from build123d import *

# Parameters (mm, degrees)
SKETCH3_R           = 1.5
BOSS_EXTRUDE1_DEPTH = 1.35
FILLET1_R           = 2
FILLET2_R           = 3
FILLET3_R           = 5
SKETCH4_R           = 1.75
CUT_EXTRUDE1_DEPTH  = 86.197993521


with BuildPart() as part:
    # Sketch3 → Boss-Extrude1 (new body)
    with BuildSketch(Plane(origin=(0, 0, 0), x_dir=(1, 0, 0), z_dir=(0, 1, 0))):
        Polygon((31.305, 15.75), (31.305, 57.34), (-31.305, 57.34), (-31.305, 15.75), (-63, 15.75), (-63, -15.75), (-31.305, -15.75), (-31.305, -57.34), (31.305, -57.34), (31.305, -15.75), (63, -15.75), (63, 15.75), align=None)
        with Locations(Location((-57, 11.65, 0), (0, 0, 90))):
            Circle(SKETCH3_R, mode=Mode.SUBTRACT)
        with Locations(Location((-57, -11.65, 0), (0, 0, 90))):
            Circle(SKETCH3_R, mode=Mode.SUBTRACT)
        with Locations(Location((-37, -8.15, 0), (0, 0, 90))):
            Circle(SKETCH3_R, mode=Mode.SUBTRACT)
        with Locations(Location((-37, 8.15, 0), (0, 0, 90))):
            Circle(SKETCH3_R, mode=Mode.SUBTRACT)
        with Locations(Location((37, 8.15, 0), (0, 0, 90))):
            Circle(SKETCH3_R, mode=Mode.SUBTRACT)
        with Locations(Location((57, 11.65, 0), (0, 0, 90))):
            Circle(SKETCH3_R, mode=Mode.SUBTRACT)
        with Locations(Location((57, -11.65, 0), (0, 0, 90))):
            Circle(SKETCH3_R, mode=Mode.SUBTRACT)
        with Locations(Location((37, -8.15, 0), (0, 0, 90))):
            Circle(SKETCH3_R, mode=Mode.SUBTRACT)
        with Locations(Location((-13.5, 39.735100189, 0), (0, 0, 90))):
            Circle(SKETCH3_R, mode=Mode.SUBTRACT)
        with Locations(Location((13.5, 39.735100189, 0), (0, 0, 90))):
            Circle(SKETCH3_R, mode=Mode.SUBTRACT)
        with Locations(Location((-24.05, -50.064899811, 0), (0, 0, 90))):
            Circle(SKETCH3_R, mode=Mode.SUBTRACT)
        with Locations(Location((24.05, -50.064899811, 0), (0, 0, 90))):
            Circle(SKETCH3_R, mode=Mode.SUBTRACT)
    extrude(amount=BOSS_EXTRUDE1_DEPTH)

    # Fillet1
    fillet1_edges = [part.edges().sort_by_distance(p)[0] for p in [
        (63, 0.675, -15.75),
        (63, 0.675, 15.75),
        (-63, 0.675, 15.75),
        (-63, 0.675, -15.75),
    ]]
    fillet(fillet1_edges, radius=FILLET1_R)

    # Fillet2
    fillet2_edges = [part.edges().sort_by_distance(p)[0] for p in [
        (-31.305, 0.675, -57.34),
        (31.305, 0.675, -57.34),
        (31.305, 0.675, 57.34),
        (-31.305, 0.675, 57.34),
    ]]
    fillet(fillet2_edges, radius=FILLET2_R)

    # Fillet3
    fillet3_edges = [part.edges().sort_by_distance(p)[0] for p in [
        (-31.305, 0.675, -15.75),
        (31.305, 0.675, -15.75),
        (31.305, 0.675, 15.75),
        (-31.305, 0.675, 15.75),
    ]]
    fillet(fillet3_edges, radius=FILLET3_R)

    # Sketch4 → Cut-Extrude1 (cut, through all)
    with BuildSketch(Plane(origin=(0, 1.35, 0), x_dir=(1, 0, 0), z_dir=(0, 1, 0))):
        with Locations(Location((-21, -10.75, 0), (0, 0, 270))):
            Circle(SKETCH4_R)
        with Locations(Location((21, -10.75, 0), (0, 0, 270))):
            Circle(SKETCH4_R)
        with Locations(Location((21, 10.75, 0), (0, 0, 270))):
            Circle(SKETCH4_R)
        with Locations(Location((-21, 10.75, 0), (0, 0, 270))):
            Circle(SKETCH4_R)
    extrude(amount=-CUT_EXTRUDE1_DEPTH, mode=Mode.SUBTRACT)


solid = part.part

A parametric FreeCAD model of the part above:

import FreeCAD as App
import Part
import Sketcher
from FreeCAD import Vector
Q = App.Units.Quantity


def edges_at(feature, points):
    """Names of the edges that pass closest to the given points."""
    edges = feature.Shape.Edges
    near = lambda p: min(range(len(edges)), key=lambda i: edges[i].distToShape(Part.Vertex(*p))[0])
    return sorted({f"Edge{near(p) + 1}" for p in points})

doc = App.newDocument("Part")
body = doc.addObject("PartDesign::Body", "Body")

# Sketch on XZ plane
sketch1 = doc.addObject("Sketcher::SketchObject", "Sketch")
body.addObject(sketch1)
sketch1.AttachmentSupport = (doc.XZ_Plane, [""])
sketch1.MapMode = "FlatFace"
sketch1.addGeometry(Part.LineSegment(Vector(31.3, -15.8, 0), Vector(31.3, -57.3, 0)), False)
sketch1.addGeometry(Part.LineSegment(Vector(31.3, -57.3, 0), Vector(-31.3, -57.3, 0)), False)
sketch1.addGeometry(Part.LineSegment(Vector(-31.3, -57.3, 0), Vector(-31.3, -15.8, 0)), False)
sketch1.addGeometry(Part.LineSegment(Vector(-31.3, -15.8, 0), Vector(-63, -15.8, 0)), False)
sketch1.addGeometry(Part.LineSegment(Vector(-63, -15.8, 0), Vector(-63, 15.8, 0)), False)
sketch1.addGeometry(Part.LineSegment(Vector(-63, 15.8, 0), Vector(-31.3, 15.8, 0)), False)
sketch1.addGeometry(Part.LineSegment(Vector(-31.3, 15.8, 0), Vector(-31.3, 57.3, 0)), False)
sketch1.addGeometry(Part.LineSegment(Vector(-31.3, 57.3, 0), Vector(31.3, 57.3, 0)), False)
sketch1.addGeometry(Part.LineSegment(Vector(31.3, 57.3, 0), Vector(31.3, 15.8, 0)), False)
sketch1.addGeometry(Part.LineSegment(Vector(31.3, 15.8, 0), Vector(63, 15.8, 0)), False)
sketch1.addGeometry(Part.LineSegment(Vector(63, 15.8, 0), Vector(63, -15.8, 0)), False)
sketch1.addGeometry(Part.LineSegment(Vector(63, -15.8, 0), Vector(31.3, -15.8, 0)), False)
sketch1.addGeometry(Part.Circle(Vector(-24.1, 50.1, 0), Vector(0, 0, 1), 1.5), False)
sketch1.addGeometry(Part.Circle(Vector(-57, 11.7, 0), Vector(0, 0, 1), 1.5), False)
sketch1.addGeometry(Part.Circle(Vector(-37, 8.2, 0), Vector(0, 0, 1), 1.5), False)
sketch1.addGeometry(Part.Circle(Vector(24.1, 50.1, 0), Vector(0, 0, 1), 1.5), False)
sketch1.addGeometry(Part.Circle(Vector(37, 8.2, 0), Vector(0, 0, 1), 1.5), False)
sketch1.addGeometry(Part.Circle(Vector(57, 11.7, 0), Vector(0, 0, 1), 1.5), False)
sketch1.addGeometry(Part.Circle(Vector(-57, -11.7, 0), Vector(0, 0, 1), 1.5), False)
sketch1.addGeometry(Part.Circle(Vector(-37, -8.2, 0), Vector(0, 0, 1), 1.5), False)
sketch1.addGeometry(Part.Circle(Vector(-13.5, -39.7, 0), Vector(0, 0, 1), 1.5), False)
sketch1.addGeometry(Part.Circle(Vector(37, -8.2, 0), Vector(0, 0, 1), 1.5), False)
sketch1.addGeometry(Part.Circle(Vector(57, -11.7, 0), Vector(0, 0, 1), 1.5), False)
sketch1.addGeometry(Part.Circle(Vector(13.5, -39.7, 0), Vector(0, 0, 1), 1.5), False)
sketch1.addConstraint(Sketcher.Constraint("Coincident", 0, 2, 1, 1))
sketch1.addConstraint(Sketcher.Constraint("Coincident", 1, 2, 2, 1))
sketch1.addConstraint(Sketcher.Constraint("Coincident", 2, 2, 3, 1))
sketch1.addConstraint(Sketcher.Constraint("Coincident", 3, 2, 4, 1))
sketch1.addConstraint(Sketcher.Constraint("Coincident", 4, 2, 5, 1))
sketch1.addConstraint(Sketcher.Constraint("Coincident", 5, 2, 6, 1))
sketch1.addConstraint(Sketcher.Constraint("Coincident", 6, 2, 7, 1))
sketch1.addConstraint(Sketcher.Constraint("Coincident", 7, 2, 8, 1))
sketch1.addConstraint(Sketcher.Constraint("Coincident", 8, 2, 9, 1))
sketch1.addConstraint(Sketcher.Constraint("Coincident", 9, 2, 10, 1))
sketch1.addConstraint(Sketcher.Constraint("Coincident", 10, 2, 11, 1))
sketch1.addConstraint(Sketcher.Constraint("Coincident", 11, 2, 0, 1))
sketch1.addConstraint(Sketcher.Constraint("Vertical", 0))
sketch1.addConstraint(Sketcher.Constraint("Horizontal", 1))
sketch1.addConstraint(Sketcher.Constraint("Vertical", 2))
sketch1.addConstraint(Sketcher.Constraint("Horizontal", 3))
sketch1.addConstraint(Sketcher.Constraint("Vertical", 4))
sketch1.addConstraint(Sketcher.Constraint("Horizontal", 5))
sketch1.addConstraint(Sketcher.Constraint("Vertical", 6))
sketch1.addConstraint(Sketcher.Constraint("Horizontal", 7))
sketch1.addConstraint(Sketcher.Constraint("Vertical", 8))
sketch1.addConstraint(Sketcher.Constraint("Horizontal", 9))
sketch1.addConstraint(Sketcher.Constraint("Vertical", 10))
sketch1.addConstraint(Sketcher.Constraint("Horizontal", 11))
sketch1.addConstraint(Sketcher.Constraint("Equal", 12, 13))
sketch1.addConstraint(Sketcher.Constraint("Equal", 13, 14))
sketch1.addConstraint(Sketcher.Constraint("Equal", 14, 15))
sketch1.addConstraint(Sketcher.Constraint("Equal", 15, 16))
sketch1.addConstraint(Sketcher.Constraint("Equal", 16, 17))
sketch1.addConstraint(Sketcher.Constraint("Equal", 17, 18))
sketch1.addConstraint(Sketcher.Constraint("Equal", 18, 19))
sketch1.addConstraint(Sketcher.Constraint("Equal", 19, 20))
sketch1.addConstraint(Sketcher.Constraint("Equal", 20, 21))
sketch1.addConstraint(Sketcher.Constraint("Equal", 21, 22))
sketch1.addConstraint(Sketcher.Constraint("Equal", 22, 23))
sketch1.addConstraint(Sketcher.Constraint("Symmetric", 17, 3, 18, 3, -1, 1))
sketch1.addConstraint(Sketcher.Constraint("Symmetric", 16, 3, 19, 3, -1, 1))
sketch1.addConstraint(Sketcher.Constraint("Symmetric", 14, 3, 21, 3, -1, 1))
sketch1.addConstraint(Sketcher.Constraint("Symmetric", 13, 3, 22, 3, -1, 1))
sketch1.addConstraint(Sketcher.Constraint("Symmetric", 0, 2, 6, 2, -1, 1))
sketch1.addConstraint(Sketcher.Constraint("Symmetric", 2, 2, 8, 2, -1, 1))
sketch1.addConstraint(Sketcher.Constraint("Symmetric", 4, 2, 10, 2, -1, 1))
sketch1.addConstraint(Sketcher.Constraint("Symmetric", 12, 3, 15, 3, -2))
sketch1.addConstraint(Sketcher.Constraint("Symmetric", 14, 3, 16, 3, -2))
sketch1.addConstraint(Sketcher.Constraint("Symmetric", 13, 3, 17, 3, -2))
sketch1.addConstraint(Sketcher.Constraint("Symmetric", 20, 3, 23, 3, -2))
sketch1.addConstraint(Sketcher.Constraint("Symmetric", 5, 2, 8, 2, -2))
sketch1.addConstraint(Sketcher.Constraint("Diameter", 12, Q("3 mm")))
sketch1.addConstraint(Sketcher.Constraint("DistanceY", 4, 1, 4, 2, Q("31.5 mm")))
sketch1.addConstraint(Sketcher.Constraint("DistanceX", 13, 3, -1, 1, Q("57 mm")))
sketch1.addConstraint(Sketcher.Constraint("DistanceX", 14, 3, -1, 1, Q("37 mm")))
sketch1.addConstraint(Sketcher.Constraint("DistanceX", 3, 2, -1, 1, Q("63 mm")))
sketch1.addConstraint(Sketcher.Constraint("DistanceX", 20, 3, 23, 3, Q("27 mm")))
sketch1.addConstraint(Sketcher.Constraint("DistanceX", 1, 2, 1, 1, Q("62.61 mm")))
sketch1.addConstraint(Sketcher.Constraint("DistanceY", 0, 2, 0, 1, Q("41.59 mm")))
sketch1.addConstraint(Sketcher.Constraint("DistanceY", 14, 3, 13, 3, Q("3.5 mm")))
sketch1.addConstraint(Sketcher.Constraint("DistanceX", 12, 3, 15, 3, Q("48.1 mm")))
sketch1.addConstraint(Sketcher.Constraint("DistanceY", 18, 3, 13, 3, Q("23.3 mm")))
sketch1.addConstraint(Sketcher.Constraint("DistanceY", -1, 1, 12, 3, Q("50.0649 mm")))
sketch1.addConstraint(Sketcher.Constraint("DistanceY", 20, 3, -1, 1, Q("39.7351 mm")))
pad1 = doc.addObject("PartDesign::Pad", "Pad")
body.addObject(pad1)
pad1.Profile = sketch1
pad1.Length = 1.35
pad1.Reversed = True
doc.recompute()

fillet = doc.addObject("PartDesign::Fillet", "Fillet")
body.addObject(fillet)
fillet.Base = (pad1, edges_at(pad1, [
    (63, 0.675, -15.75),
    (63, 0.675, 15.75),
    (-63, 0.675, 15.75),
    (-63, 0.675, -15.75),
]))
fillet.Radius = 2
doc.recompute()

fillet2 = doc.addObject("PartDesign::Fillet", "Fillet001")
body.addObject(fillet2)
fillet2.Base = (fillet, edges_at(fillet, [
    (-31.305, 0.675, -57.34),
    (31.305, 0.675, -57.34),
    (31.305, 0.675, 57.34),
    (-31.305, 0.675, 57.34),
]))
fillet2.Radius = 3
doc.recompute()

fillet3 = doc.addObject("PartDesign::Fillet", "Fillet002")
body.addObject(fillet3)
fillet3.Base = (fillet2, edges_at(fillet2, [
    (-31.305, 0.675, -15.75),
    (31.305, 0.675, -15.75),
    (31.305, 0.675, 15.75),
    (-31.305, 0.675, 15.75),
]))
fillet3.Radius = 5

# Sketch on XZ plane
sketch2 = doc.addObject("Sketcher::SketchObject", "Sketch001")
body.addObject(sketch2)
sketch2.AttachmentSupport = (doc.XZ_Plane, [""])
sketch2.MapMode = "FlatFace"
sketch2.AttachmentOffset = App.Placement(Vector(0, 0, -1.35), App.Rotation())
sketch2.addGeometry(Part.Circle(Vector(-21, 10.8, 0), Vector(0, 0, 1), 1.8), False)
sketch2.addGeometry(Part.Circle(Vector(21, 10.8, 0), Vector(0, 0, 1), 1.8), False)
sketch2.addGeometry(Part.Circle(Vector(21, -10.8, 0), Vector(0, 0, 1), 1.8), False)
sketch2.addGeometry(Part.Circle(Vector(-21, -10.8, 0), Vector(0, 0, 1), 1.8), False)
sketch2.addConstraint(Sketcher.Constraint("Equal", 0, 1))
sketch2.addConstraint(Sketcher.Constraint("Equal", 1, 2))
sketch2.addConstraint(Sketcher.Constraint("Equal", 2, 3))
sketch2.addConstraint(Sketcher.Constraint("Symmetric", 0, 3, 2, 3, -1, 1))
sketch2.addConstraint(Sketcher.Constraint("Symmetric", 1, 3, 3, 3, -1, 1))
sketch2.addConstraint(Sketcher.Constraint("Symmetric", 0, 3, 1, 3, -2))
sketch2.addConstraint(Sketcher.Constraint("Diameter", 0, Q("3.5 mm")))
sketch2.addConstraint(Sketcher.Constraint("DistanceX", 0, 3, -1, 1, Q("21 mm")))
sketch2.addConstraint(Sketcher.Constraint("DistanceY", 2, 3, 1, 3, Q("21.5 mm")))
pocket1 = doc.addObject("PartDesign::Pocket", "Pocket")
body.addObject(pocket1)
pocket1.Profile = sketch2
pocket1.Type = "ThroughAll"
pocket1.Reversed = True

doc.recompute()
